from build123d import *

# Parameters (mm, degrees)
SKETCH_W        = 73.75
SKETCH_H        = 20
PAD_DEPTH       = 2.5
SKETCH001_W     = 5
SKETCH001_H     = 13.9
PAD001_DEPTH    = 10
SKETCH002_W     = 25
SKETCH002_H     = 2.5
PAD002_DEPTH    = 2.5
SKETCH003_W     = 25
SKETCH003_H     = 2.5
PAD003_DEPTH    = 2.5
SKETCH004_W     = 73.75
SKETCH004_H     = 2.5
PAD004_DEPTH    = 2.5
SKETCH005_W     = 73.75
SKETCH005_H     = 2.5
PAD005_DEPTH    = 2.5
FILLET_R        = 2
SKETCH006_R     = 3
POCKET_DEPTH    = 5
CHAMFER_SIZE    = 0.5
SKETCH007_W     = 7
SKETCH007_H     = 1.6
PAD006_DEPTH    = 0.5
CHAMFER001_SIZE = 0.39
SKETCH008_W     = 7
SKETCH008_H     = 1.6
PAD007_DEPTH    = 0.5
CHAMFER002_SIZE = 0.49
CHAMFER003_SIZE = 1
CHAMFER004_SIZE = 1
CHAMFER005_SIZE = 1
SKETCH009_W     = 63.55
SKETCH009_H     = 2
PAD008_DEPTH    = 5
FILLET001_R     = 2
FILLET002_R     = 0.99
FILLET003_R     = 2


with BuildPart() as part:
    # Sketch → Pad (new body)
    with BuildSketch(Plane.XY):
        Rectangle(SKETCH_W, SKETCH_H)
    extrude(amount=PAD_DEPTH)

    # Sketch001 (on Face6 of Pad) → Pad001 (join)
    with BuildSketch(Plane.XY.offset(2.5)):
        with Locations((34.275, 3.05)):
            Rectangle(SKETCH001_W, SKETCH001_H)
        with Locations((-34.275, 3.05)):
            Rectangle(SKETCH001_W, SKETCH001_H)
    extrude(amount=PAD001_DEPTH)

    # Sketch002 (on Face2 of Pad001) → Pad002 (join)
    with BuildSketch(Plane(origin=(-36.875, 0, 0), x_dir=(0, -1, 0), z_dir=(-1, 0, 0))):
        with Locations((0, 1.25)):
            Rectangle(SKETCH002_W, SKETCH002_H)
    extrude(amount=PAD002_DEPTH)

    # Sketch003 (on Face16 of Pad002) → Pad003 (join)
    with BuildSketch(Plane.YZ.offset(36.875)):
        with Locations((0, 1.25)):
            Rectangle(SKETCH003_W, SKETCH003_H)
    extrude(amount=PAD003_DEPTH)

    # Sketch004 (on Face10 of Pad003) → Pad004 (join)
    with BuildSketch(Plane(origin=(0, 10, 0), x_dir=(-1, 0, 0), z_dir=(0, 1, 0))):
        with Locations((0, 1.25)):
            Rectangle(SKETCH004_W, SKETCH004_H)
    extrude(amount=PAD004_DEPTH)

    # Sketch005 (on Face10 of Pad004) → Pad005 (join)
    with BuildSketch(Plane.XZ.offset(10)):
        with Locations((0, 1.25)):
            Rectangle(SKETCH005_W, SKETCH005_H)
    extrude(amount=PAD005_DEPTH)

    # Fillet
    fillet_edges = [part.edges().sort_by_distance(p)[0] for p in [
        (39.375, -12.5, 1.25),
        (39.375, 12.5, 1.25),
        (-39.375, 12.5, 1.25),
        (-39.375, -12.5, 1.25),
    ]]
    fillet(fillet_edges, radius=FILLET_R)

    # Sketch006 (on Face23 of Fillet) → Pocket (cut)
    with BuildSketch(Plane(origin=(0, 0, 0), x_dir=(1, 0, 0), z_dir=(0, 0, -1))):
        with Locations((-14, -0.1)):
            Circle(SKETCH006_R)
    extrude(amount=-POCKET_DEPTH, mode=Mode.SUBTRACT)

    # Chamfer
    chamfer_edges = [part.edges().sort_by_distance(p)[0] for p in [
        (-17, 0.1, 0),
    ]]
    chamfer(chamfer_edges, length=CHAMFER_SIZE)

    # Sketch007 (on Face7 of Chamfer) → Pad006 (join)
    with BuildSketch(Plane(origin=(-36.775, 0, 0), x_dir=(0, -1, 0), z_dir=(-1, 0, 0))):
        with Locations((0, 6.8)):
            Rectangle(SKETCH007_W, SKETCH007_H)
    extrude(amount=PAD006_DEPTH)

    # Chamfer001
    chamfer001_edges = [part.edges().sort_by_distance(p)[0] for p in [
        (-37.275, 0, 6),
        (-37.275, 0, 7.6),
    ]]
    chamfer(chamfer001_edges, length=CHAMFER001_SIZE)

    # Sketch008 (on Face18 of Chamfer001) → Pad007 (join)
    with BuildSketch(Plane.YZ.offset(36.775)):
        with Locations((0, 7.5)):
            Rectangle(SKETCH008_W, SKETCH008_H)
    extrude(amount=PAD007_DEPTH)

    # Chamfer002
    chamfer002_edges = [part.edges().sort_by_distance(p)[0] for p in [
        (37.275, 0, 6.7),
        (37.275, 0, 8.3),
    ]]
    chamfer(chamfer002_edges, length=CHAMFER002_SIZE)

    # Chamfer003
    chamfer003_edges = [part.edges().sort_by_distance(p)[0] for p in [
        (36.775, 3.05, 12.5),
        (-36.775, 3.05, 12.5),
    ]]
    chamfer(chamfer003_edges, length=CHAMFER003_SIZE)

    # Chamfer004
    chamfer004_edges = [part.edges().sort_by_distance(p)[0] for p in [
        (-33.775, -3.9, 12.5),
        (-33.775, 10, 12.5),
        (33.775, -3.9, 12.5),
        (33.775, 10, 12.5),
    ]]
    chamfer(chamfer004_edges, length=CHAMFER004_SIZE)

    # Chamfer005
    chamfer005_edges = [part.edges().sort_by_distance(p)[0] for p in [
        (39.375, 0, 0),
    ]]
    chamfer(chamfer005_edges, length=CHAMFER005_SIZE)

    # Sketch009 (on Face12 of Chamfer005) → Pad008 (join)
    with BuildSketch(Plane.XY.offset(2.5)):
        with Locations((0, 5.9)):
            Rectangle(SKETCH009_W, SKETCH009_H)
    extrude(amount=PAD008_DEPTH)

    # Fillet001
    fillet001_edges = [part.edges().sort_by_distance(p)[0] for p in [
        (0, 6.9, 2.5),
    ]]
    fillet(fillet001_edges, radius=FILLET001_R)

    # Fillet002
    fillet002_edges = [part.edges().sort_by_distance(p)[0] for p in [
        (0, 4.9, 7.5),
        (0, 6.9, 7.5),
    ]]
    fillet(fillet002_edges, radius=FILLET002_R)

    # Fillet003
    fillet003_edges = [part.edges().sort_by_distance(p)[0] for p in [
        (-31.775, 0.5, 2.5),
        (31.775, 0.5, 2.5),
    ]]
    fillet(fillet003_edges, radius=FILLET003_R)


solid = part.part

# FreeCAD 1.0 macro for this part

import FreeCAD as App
import Part
import Sketcher


def edges_at(feature, points):
    """Names of the edges that pass closest to the given points."""
    edges = feature.Shape.Edges
    near = lambda p: min(range(len(edges)), key=lambda i: edges[i].distToShape(Part.Vertex(*p))[0])
    return sorted({f"Edge{near(p) + 1}" for p in points})


def add_polygon(sketch, points):
    """Adds a closed chain of lines whose ends are joined by coincident constraints."""
    first, n = sketch.GeometryCount, len(points)
    for a, b in zip(points, points[1:] + points[:1]):
        sketch.addGeometry(Part.LineSegment(App.Vector(*a, 0), App.Vector(*b, 0)), False)
    for i in range(n):
        sketch.addConstraint(Sketcher.Constraint("Coincident", first + i, 2, first + (i + 1) % n, 1))

doc = App.newDocument("Part")
body = doc.addObject("PartDesign::Body", "Body")

# Sketch on XY plane
sketch1 = doc.addObject("Sketcher::SketchObject", "Sketch")
body.addObject(sketch1)
sketch1.AttachmentSupport = (doc.XY_Plane, [""])
sketch1.MapMode = "FlatFace"
add_polygon(sketch1, [(-37, 10), (-37, -10), (37, -10), (37, 10)])  # lines 0-3
sketch1.addConstraint([
    Sketcher.Constraint("Vertical", 0),
    Sketcher.Constraint("Horizontal", 1),
    Sketcher.Constraint("Vertical", 2),
    Sketcher.Constraint("Horizontal", 3),
    Sketcher.Constraint("Symmetric", 0, 2, 2, 2, -1, 1),
    Sketcher.Constraint("DistanceY", 0, 2, 0, 1, 20.0),
    Sketcher.Constraint("DistanceX", 1, 1, 1, 2, 73.75),
])
pad1 = doc.addObject("PartDesign::Pad", "Pad")
body.addObject(pad1)
pad1.Profile = sketch1
pad1.Length = 2.5

# Sketch on XY plane
sketch2 = doc.addObject("Sketcher::SketchObject", "Sketch001")
body.addObject(sketch2)
sketch2.AttachmentSupport = (doc.XY_Plane, [""])
sketch2.MapMode = "FlatFace"
sketch2.AttachmentOffset = App.Placement(App.Vector(0, 0, 2.5), App.Rotation())
add_polygon(sketch2, [(32, 10), (32, -4), (37, -4), (37, 10)])  # lines 0-3
add_polygon(sketch2, [(-37, 10), (-37, -4), (-32, -4), (-32, 10)])  # lines 4-7
sketch2.addConstraint([
    Sketcher.Constraint("Vertical", 0),
    Sketcher.Constraint("Horizontal", 1),
    Sketcher.Constraint("Vertical", 2),
    Sketcher.Constraint("Horizontal", 3),
    Sketcher.Constraint("Vertical", 4),
    Sketcher.Constraint("Horizontal", 5),
    Sketcher.Constraint("Vertical", 6),
    Sketcher.Constraint("Horizontal", 7),
    Sketcher.Constraint("Symmetric", 1, 2, 4, 2, -2),
    Sketcher.Constraint("Symmetric", 3, 2, 6, 2, -2),
    Sketcher.Constraint("DistanceX", 1, 1, 1, 2, 5.0),
    Sketcher.Constraint("DistanceY", 0, 2, 0, 1, 13.9),
    Sketcher.Constraint("DistanceY", -1, 1, 2, 2, 10.0),
    Sketcher.Constraint("DistanceX", 4, 2, 0, 2, 68.55),
])
pad2 = doc.addObject("PartDesign::Pad", "Pad001")
body.addObject(pad2)
pad2.Profile = sketch2
pad2.Length = 10

# Sketch on YZ plane
sketch3 = doc.addObject("Sketcher::SketchObject", "Sketch002")
body.addObject(sketch3)
sketch3.AttachmentSupport = (doc.YZ_Plane, [""])
sketch3.MapMode = "FlatFace"
sketch3.AttachmentOffset = App.Placement(App.Vector(0, 0, -36.875), App.Rotation())
add_polygon(sketch3, [(12.5, 2.5), (12.5, 0), (-12.5, 0), (-12.5, 2.5)])  # lines 0-3
sketch3.addConstraint([
    Sketcher.Constraint("Vertical", 0),
    Sketcher.Constraint("Horizontal", 1),
    Sketcher.Constraint("Vertical", 2),
    Sketcher.Constraint("Horizontal", 3),
    Sketcher.Constraint("Symmetric", 0, 2, 1, 2, -1, 1),
    Sketcher.Constraint("DistanceX", 1, 2, 1, 1, 25.0),
    Sketcher.Constraint("DistanceY", 0, 2, 0, 1, 2.5),
])
pad3 = doc.addObject("PartDesign::Pad", "Pad002")
body.addObject(pad3)
pad3.Profile = sketch3
pad3.Length = 2.5
pad3.Reversed = True

# Sketch on YZ plane
sketch4 = doc.addObject("Sketcher::SketchObject", "Sketch003")
body.addObject(sketch4)
sketch4.AttachmentSupport = (doc.YZ_Plane, [""])
sketch4.MapMode = "FlatFace"
sketch4.AttachmentOffset = App.Placement(App.Vector(0, 0, 36.875), App.Rotation())
add_polygon(sketch4, [(-12.5, 2.5), (-12.5, 0), (12.5, 0), (12.5, 2.5)])  # lines 0-3
sketch4.addConstraint([
    Sketcher.Constraint("Vertical", 0),
    Sketcher.Constraint("Horizontal", 1),
    Sketcher.Constraint("Vertical", 2),
    Sketcher.Constraint("Horizontal", 3),
    Sketcher.Constraint("Symmetric", 0, 2, 1, 2, -1, 1),
    Sketcher.Constraint("DistanceX", 1, 1, 1, 2, 25.0),
    Sketcher.Constraint("DistanceY", 0, 2, 0, 1, 2.5),
])
pad4 = doc.addObject("PartDesign::Pad", "Pad003")
body.addObject(pad4)
pad4.Profile = sketch4
pad4.Length = 2.5

# Sketch on XZ plane
sketch5 = doc.addObject("Sketcher::SketchObject", "Sketch004")
body.addObject(sketch5)
sketch5.AttachmentSupport = (doc.XZ_Plane, [""])
sketch5.MapMode = "FlatFace"
sketch5.AttachmentOffset = App.Placement(App.Vector(0, 0, -10), App.Rotation())
add_polygon(sketch5, [(36.9, 2.5), (36.9, 0), (-36.9, 0), (-36.9, 2.5)])  # lines 0-3
sketch5.addConstraint([
    Sketcher.Constraint("Vertical", 0),
    Sketcher.Constraint("Horizontal", 1),
    Sketcher.Constraint("Vertical", 2),
    Sketcher.Constraint("Horizontal", 3),
    Sketcher.Constraint("Symmetric", 0, 2, 1, 2, -1, 1),
    Sketcher.Constraint("DistanceY", 0, 2, 0, 1, 2.5),
    Sketcher.Constraint("DistanceX", 1, 2, 1, 1, 73.75),
])
pad5 = doc.addObject("PartDesign::Pad", "Pad004")
body.addObject(pad5)
pad5.Profile = sketch5
pad5.Length = 2.5
pad5.Reversed = True

# Sketch on XZ plane
sketch6 = doc.addObject("Sketcher::SketchObject", "Sketch005")
body.addObject(sketch6)
sketch6.AttachmentSupport = (doc.XZ_Plane, [""])
sketch6.MapMode = "FlatFace"
sketch6.AttachmentOffset = App.Placement(App.Vector(0, 0, 10), App.Rotation())
add_polygon(sketch6, [(-36.9, 2.5), (-36.9, 0), (36.9, 0), (36.9, 2.5)])  # lines 0-3
sketch6.addConstraint([
    Sketcher.Constraint("Vertical", 0),
    Sketcher.Constraint("Horizontal", 1),
    Sketcher.Constraint("Vertical", 2),
    Sketcher.Constraint("Horizontal", 3),
    Sketcher.Constraint("Symmetric", 0, 2, 1, 2, -1, 1),
    Sketcher.Constraint("DistanceY", 0, 2, 0, 1, 2.5),
    Sketcher.Constraint("DistanceX", 1, 1, 1, 2, 73.75),
])
pad6 = doc.addObject("PartDesign::Pad", "Pad005")
body.addObject(pad6)
pad6.Profile = sketch6
pad6.Length = 2.5
doc.recompute()

fillet = doc.addObject("PartDesign::Fillet", "Fillet")
body.addObject(fillet)
fillet.Base = (pad6, edges_at(pad6, [
    (39.375, -12.5, 1.25),
    (39.375, 12.5, 1.25),
    (-39.375, 12.5, 1.25),
    (-39.375, -12.5, 1.25),
]))
fillet.Radius = 2

# Sketch on XY plane
sketch7 = doc.addObject("Sketcher::SketchObject", "Sketch006")
body.addObject(sketch7)
sketch7.AttachmentSupport = (doc.XY_Plane, [""])
sketch7.MapMode = "FlatFace"
sketch7.addGeometry(Part.Circle(App.Vector(-14, 0.1, 0), App.Vector(0, 0, 1), 3), False)
sketch7.addConstraint([
    Sketcher.Constraint("Diameter", 0, 6.0),
    Sketcher.Constraint("DistanceX", 0, 3, -1, 1, 14.0),
    Sketcher.Constraint("DistanceY", -1, 1, 0, 3, 0.1),
])
pocket1 = doc.addObject("PartDesign::Pocket", "Pocket")
body.addObject(pocket1)
pocket1.Profile = sketch7
pocket1.Length = 5
pocket1.Reversed = True
doc.recompute()

chamfer = doc.addObject("PartDesign::Chamfer", "Chamfer")
body.addObject(chamfer)
chamfer.Base = (pocket1, edges_at(pocket1, [(-17, 0.1, 0)]))
chamfer.Size = 0.5

# Sketch on YZ plane
sketch8 = doc.addObject("Sketcher::SketchObject", "Sketch007")
body.addObject(sketch8)
sketch8.AttachmentSupport = (doc.YZ_Plane, [""])
sketch8.MapMode = "FlatFace"
sketch8.AttachmentOffset = App.Placement(App.Vector(0, 0, -36.775), App.Rotation())
add_polygon(sketch8, [(3.5, 7.6), (3.5, 6), (-3.5, 6), (-3.5, 7.6)])  # lines 0-3
sketch8.addConstraint([
    Sketcher.Constraint("Vertical", 0),
    Sketcher.Constraint("Horizontal", 1),
    Sketcher.Constraint("Vertical", 2),
    Sketcher.Constraint("Horizontal", 3),
    Sketcher.Constraint("DistanceX", 1, 2, 1, 1, 7.0),
    Sketcher.Constraint("DistanceY", 0, 2, 0, 1, 1.6),
    Sketcher.Constraint("DistanceY", -1, 1, 0, 2, 6.0),
    Sketcher.Constraint("DistanceX", -1, 1, 0, 2, 3.5),
])
pad7 = doc.addObject("PartDesign::Pad", "Pad006")
body.addObject(pad7)
pad7.Profile = sketch8
pad7.Length = 0.5
pad7.Reversed = True
doc.recompute()

chamfer2 = doc.addObject("PartDesign::Chamfer", "Chamfer001")
body.addObject(chamfer2)
chamfer2.Base = (pad7, edges_at(pad7, [(-37.275, 0, 6), (-37.275, 0, 7.6)]))
chamfer2.Size = 0.39

# Sketch on YZ plane
sketch9 = doc.addObject("Sketcher::SketchObject", "Sketch008")
body.addObject(sketch9)
sketch9.AttachmentSupport = (doc.YZ_Plane, [""])
sketch9.MapMode = "FlatFace"
sketch9.AttachmentOffset = App.Placement(App.Vector(0, 0, 36.775), App.Rotation())
add_polygon(sketch9, [(-3.5, 8.3), (-3.5, 6.7), (3.5, 6.7), (3.5, 8.3)])  # lines 0-3
sketch9.addConstraint([
    Sketcher.Constraint("Vertical", 0),
    Sketcher.Constraint("Horizontal", 1),
    Sketcher.Constraint("Vertical", 2),
    Sketcher.Constraint("Horizontal", 3),
    Sketcher.Constraint("DistanceX", 1, 1, 1, 2, 7.0),
    Sketcher.Constraint("DistanceY", 0, 2, 0, 1, 1.6),
    Sketcher.Constraint("DistanceX", 0, 2, -1, 1, 3.5),
    Sketcher.Constraint("DistanceY", -1, 1, 0, 2, 6.7),
])
pad8 = doc.addObject("PartDesign::Pad", "Pad007")
body.addObject(pad8)
pad8.Profile = sketch9
pad8.Length = 0.5
doc.recompute()

chamfer3 = doc.addObject("PartDesign::Chamfer", "Chamfer002")
body.addObject(chamfer3)
chamfer3.Base = (pad8, edges_at(pad8, [(37.275, 0, 6.7), (37.275, 0, 8.3)]))
chamfer3.Size = 0.49
doc.recompute()

chamfer4 = doc.addObject("PartDesign::Chamfer", "Chamfer003")
body.addObject(chamfer4)
chamfer4.Base = (chamfer3, edges_at(chamfer3, [(36.775, 3.05, 12.5), (-36.775, 3.05, 12.5)]))
chamfer4.Size = 1
doc.recompute()

chamfer5 = doc.addObject("PartDesign::Chamfer", "Chamfer004")
body.addObject(chamfer5)
chamfer5.Base = (chamfer4, edges_at(chamfer4, [
    (-33.775, -3.9, 12.5),
    (-33.775, 10, 12.5),
    (33.775, -3.9, 12.5),
    (33.775, 10, 12.5),
]))
chamfer5.Size = 1
doc.recompute()

chamfer6 = doc.addObject("PartDesign::Chamfer", "Chamfer005")
body.addObject(chamfer6)
chamfer6.Base = (chamfer5, edges_at(chamfer5, [(39.375, 0, 0)]))
chamfer6.Size = 1

# Sketch on XY plane
sketch10 = doc.addObject("Sketcher::SketchObject", "Sketch009")
body.addObject(sketch10)
sketch10.AttachmentSupport = (doc.XY_Plane, [""])
sketch10.MapMode = "FlatFace"
sketch10.AttachmentOffset = App.Placement(App.Vector(0, 0, 2.5), App.Rotation())
add_polygon(sketch10, [(-31.8, 6.9), (-31.8, 4.9), (31.8, 4.9), (31.8, 6.9)])  # lines 0-3
sketch10.addConstraint([
    Sketcher.Constraint("Vertical", 0),
    Sketcher.Constraint("Horizontal", 1),
    Sketcher.Constraint("Vertical", 2),
    Sketcher.Constraint("Horizontal", 3),
    Sketcher.Constraint("DistanceY", 0, 2, 0, 1, 2.0),
    Sketcher.Constraint("DistanceX", 1, 1, 1, 2, 63.55),
    Sketcher.Constraint("DistanceY", -1, 1, 0, 2, 4.9),
    Sketcher.Constraint("DistanceX", 0, 2, -1, 1, 31.775),
])
pad9 = doc.addObject("PartDesign::Pad", "Pad008")
body.addObject(pad9)
pad9.Profile = sketch10
pad9.Length = 5
doc.recompute()

fillet2 = doc.addObject("PartDesign::Fillet", "Fillet001")
body.addObject(fillet2)
fillet2.Base = (pad9, edges_at(pad9, [(0, 6.9, 2.5)]))
fillet2.Radius = 2
doc.recompute()

fillet3 = doc.addObject("PartDesign::Fillet", "Fillet002")
body.addObject(fillet3)
fillet3.Base = (fillet2, edges_at(fillet2, [(0, 4.9, 7.5), (0, 6.9, 7.5)]))
fillet3.Radius = 0.99
doc.recompute()

fillet4 = doc.addObject("PartDesign::Fillet", "Fillet003")
body.addObject(fillet4)
fillet4.Base = (fillet3, edges_at(fillet3, [(-31.775, 0.5, 2.5), (31.775, 0.5, 2.5)]))
fillet4.Radius = 2

doc.recompute()
